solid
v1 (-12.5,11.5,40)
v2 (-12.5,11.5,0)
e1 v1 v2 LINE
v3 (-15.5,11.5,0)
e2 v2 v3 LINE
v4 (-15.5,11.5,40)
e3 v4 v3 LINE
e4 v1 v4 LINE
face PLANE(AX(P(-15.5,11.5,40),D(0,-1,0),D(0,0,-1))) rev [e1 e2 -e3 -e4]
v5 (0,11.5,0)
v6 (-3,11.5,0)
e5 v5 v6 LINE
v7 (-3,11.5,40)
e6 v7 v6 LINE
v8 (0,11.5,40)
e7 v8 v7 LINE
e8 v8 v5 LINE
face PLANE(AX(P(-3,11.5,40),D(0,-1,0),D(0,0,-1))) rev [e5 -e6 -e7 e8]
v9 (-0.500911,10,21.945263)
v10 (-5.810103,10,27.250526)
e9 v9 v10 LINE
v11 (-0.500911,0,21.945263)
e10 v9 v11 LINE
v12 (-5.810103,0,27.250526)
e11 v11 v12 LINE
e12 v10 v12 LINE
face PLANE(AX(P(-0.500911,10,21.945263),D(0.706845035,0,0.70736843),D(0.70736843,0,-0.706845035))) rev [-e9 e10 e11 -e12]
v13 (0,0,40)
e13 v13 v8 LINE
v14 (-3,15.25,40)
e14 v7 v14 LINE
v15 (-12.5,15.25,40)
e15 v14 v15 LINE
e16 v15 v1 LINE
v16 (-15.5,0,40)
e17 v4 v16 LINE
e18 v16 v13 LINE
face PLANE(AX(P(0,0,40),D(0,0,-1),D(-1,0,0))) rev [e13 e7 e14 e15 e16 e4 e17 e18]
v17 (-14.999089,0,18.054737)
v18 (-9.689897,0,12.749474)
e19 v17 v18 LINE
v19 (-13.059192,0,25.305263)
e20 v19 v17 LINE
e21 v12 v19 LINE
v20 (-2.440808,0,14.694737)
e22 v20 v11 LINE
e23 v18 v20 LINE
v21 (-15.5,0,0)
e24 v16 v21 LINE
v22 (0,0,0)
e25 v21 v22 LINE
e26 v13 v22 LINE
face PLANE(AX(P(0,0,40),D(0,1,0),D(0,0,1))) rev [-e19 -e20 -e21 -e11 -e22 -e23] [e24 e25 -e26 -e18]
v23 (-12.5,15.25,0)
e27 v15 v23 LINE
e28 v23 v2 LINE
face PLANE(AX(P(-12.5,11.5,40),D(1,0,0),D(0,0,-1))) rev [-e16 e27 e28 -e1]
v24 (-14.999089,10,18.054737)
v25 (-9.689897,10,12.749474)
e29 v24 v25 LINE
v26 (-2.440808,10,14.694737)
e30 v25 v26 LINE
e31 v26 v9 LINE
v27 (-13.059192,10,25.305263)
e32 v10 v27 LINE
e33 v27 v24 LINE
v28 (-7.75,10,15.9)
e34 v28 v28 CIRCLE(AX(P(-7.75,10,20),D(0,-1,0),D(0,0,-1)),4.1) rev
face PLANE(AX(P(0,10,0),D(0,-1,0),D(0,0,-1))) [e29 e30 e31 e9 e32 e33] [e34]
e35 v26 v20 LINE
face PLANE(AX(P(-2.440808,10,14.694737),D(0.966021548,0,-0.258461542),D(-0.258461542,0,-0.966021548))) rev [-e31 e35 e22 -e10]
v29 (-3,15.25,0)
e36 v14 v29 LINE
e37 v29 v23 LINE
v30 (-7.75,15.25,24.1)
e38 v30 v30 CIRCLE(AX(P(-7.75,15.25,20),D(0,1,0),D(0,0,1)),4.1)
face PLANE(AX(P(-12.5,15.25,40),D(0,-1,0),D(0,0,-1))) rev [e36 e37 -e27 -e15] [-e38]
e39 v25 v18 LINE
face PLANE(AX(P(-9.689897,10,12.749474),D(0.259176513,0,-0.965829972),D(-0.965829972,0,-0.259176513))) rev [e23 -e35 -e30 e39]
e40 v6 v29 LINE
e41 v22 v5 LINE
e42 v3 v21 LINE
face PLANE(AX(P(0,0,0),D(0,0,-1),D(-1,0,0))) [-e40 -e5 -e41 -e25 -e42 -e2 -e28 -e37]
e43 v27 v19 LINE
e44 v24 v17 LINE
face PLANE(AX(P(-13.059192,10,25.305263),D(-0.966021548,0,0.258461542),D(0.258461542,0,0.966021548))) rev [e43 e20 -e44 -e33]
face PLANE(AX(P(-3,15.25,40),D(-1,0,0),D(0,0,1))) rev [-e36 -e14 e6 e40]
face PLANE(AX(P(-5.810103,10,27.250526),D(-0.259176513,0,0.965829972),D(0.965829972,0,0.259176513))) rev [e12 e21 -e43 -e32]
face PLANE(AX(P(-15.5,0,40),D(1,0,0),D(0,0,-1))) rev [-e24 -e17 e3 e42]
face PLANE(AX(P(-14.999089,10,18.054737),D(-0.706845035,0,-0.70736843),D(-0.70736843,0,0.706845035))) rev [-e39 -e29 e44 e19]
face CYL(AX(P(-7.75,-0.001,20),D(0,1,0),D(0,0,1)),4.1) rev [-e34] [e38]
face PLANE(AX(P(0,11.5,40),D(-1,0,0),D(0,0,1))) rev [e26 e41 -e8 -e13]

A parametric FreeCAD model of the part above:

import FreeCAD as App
import Part
import Sketcher
Q = App.Units.Quantity


def add_polygon(sketch, points):
    """Adds a closed chain of lines whose ends are joined by coincident constraints."""
    first, n = sketch.GeometryCount, len(points)
    for a, b in zip(points, points[1:] + points[:1]):
        sketch.addGeometry(Part.LineSegment(App.Vector(*a, 0), App.Vector(*b, 0)), False)
    for i in range(n):
        sketch.addConstraint(Sketcher.Constraint("Coincident", first + i, 2, first + (i + 1) % n, 1))

doc = App.newDocument("Part")
body = doc.addObject("PartDesign::Body", "Body")

# Sketch on XY plane
sketch1 = body.newObject("Sketcher::SketchObject", "Sketch")
sketch1.AttachmentSupport = (doc.getObject("XY_Plane"), [""])
sketch1.MapMode = "FlatFace"
add_polygon(sketch1, [(-15.5, 0), (0, 0), (0, 11.5), (-3, 11.5), (-3, 15.25), (-12.5, 15.25), (-12.5, 11.5), (-15.5, 11.5)])  # lines 0-7
sketch1.addConstraint([
    Sketcher.Constraint("Horizontal", 0),
    Sketcher.Constraint("Vertical", 1),
    Sketcher.Constraint("Horizontal", 2),
    Sketcher.Constraint("Vertical", 3),
    Sketcher.Constraint("Horizontal", 4),
    Sketcher.Constraint("Vertical", 5),
    Sketcher.Constraint("Horizontal", 6),
    Sketcher.Constraint("Vertical", 7),
    Sketcher.Constraint("Coincident", 0, 2, -1, 1),
    Sketcher.Constraint("Horizontal", 2, 2, 5, 2),
    Sketcher.Constraint("Equal", 2, 6),
    Sketcher.Constraint("DistanceX", 2, 2, 2, 1, Q("3 mm")),
    Sketcher.Constraint("DistanceX", 0, 1, 0, 2, Q("15.5 mm")),
    Sketcher.Constraint("DistanceY", 1, 1, 1, 2, Q("11.5 mm")),
    Sketcher.Constraint("DistanceY", 3, 1, 3, 2, Q("3.75 mm")),
])
pad1 = body.newObject("PartDesign::Pad", "Pad")
pad1.Profile = sketch1
pad1.Length = 40

# Sketch on XZ plane
sketch2 = body.newObject("Sketcher::SketchObject", "Sketch001")
sketch2.AttachmentSupport = (doc.getObject("XZ_Plane"), [""])
sketch2.MapMode = "FlatFace"
sketch2.AttachmentOffset = App.Placement(App.Vector(0, 0, -15.25), App.Rotation())
sketch2.addGeometry(Part.Circle(App.Vector(-7.75, 20, 0), App.Vector(0, 0, 1), 4.1), False)
sketch2.addConstraint([
    Sketcher.Constraint("Diameter", 0, Q("8.2 mm")),
    Sketcher.Constraint("DistanceY", -1, 1, 0, 3, Q("20 mm")),
    Sketcher.Constraint("DistanceX", 0, 3, -1, 1, Q("7.75 mm")),
])
pocket1 = body.newObject("PartDesign::Pocket", "Pocket")
pocket1.Profile = sketch2
pocket1.Type = "UpToFirst"
pocket1.Reversed = True

# Sketch on XZ plane
sketch3 = body.newObject("Sketcher::SketchObject", "Sketch002")
sketch3.AttachmentSupport = (doc.getObject("XZ_Plane"), [""])
sketch3.MapMode = "FlatFace"
add_polygon(sketch3, [(-2.440808, 14.694737), (-0.500911, 21.945263), (-5.810103, 27.250526), (-13.059192, 25.305263), (-14.999089, 18.054737), (-9.689897, 12.749474)])  # lines 0-5
sketch3.addConstraint([
    Sketcher.Constraint("Parallel", 0, 3),
    Sketcher.Constraint("Parallel", 1, 4),
    Sketcher.Constraint("Parallel", 2, 5),
    Sketcher.Constraint("Equal", 0, 1),
    Sketcher.Constraint("Equal", 1, 2),
    Sketcher.Constraint("Equal", 2, 3),
    Sketcher.Constraint("DistanceY", 0, 2, 2, 2, Q("3.36 mm")),
    Sketcher.Constraint("DistanceX", 0, 2, -1, 1, Q("0.500911 mm")),
    Sketcher.Constraint("DistanceX", 2, 2, -1, 1, Q("13.059192 mm")),
    Sketcher.Constraint("DistanceX", 3, 2, -1, 1, Q("14.999089 mm")),
    Sketcher.Constraint("DistanceX", 1, 2, 0, 2, Q("5.309192 mm")),
    Sketcher.Constraint("DistanceY", -1, 1, 0, 2, Q("21.945263 mm")),
])
pocket2 = body.newObject("PartDesign::Pocket", "Pocket001")
pocket2.Profile = sketch3
pocket2.Length = 10

doc.recompute()
